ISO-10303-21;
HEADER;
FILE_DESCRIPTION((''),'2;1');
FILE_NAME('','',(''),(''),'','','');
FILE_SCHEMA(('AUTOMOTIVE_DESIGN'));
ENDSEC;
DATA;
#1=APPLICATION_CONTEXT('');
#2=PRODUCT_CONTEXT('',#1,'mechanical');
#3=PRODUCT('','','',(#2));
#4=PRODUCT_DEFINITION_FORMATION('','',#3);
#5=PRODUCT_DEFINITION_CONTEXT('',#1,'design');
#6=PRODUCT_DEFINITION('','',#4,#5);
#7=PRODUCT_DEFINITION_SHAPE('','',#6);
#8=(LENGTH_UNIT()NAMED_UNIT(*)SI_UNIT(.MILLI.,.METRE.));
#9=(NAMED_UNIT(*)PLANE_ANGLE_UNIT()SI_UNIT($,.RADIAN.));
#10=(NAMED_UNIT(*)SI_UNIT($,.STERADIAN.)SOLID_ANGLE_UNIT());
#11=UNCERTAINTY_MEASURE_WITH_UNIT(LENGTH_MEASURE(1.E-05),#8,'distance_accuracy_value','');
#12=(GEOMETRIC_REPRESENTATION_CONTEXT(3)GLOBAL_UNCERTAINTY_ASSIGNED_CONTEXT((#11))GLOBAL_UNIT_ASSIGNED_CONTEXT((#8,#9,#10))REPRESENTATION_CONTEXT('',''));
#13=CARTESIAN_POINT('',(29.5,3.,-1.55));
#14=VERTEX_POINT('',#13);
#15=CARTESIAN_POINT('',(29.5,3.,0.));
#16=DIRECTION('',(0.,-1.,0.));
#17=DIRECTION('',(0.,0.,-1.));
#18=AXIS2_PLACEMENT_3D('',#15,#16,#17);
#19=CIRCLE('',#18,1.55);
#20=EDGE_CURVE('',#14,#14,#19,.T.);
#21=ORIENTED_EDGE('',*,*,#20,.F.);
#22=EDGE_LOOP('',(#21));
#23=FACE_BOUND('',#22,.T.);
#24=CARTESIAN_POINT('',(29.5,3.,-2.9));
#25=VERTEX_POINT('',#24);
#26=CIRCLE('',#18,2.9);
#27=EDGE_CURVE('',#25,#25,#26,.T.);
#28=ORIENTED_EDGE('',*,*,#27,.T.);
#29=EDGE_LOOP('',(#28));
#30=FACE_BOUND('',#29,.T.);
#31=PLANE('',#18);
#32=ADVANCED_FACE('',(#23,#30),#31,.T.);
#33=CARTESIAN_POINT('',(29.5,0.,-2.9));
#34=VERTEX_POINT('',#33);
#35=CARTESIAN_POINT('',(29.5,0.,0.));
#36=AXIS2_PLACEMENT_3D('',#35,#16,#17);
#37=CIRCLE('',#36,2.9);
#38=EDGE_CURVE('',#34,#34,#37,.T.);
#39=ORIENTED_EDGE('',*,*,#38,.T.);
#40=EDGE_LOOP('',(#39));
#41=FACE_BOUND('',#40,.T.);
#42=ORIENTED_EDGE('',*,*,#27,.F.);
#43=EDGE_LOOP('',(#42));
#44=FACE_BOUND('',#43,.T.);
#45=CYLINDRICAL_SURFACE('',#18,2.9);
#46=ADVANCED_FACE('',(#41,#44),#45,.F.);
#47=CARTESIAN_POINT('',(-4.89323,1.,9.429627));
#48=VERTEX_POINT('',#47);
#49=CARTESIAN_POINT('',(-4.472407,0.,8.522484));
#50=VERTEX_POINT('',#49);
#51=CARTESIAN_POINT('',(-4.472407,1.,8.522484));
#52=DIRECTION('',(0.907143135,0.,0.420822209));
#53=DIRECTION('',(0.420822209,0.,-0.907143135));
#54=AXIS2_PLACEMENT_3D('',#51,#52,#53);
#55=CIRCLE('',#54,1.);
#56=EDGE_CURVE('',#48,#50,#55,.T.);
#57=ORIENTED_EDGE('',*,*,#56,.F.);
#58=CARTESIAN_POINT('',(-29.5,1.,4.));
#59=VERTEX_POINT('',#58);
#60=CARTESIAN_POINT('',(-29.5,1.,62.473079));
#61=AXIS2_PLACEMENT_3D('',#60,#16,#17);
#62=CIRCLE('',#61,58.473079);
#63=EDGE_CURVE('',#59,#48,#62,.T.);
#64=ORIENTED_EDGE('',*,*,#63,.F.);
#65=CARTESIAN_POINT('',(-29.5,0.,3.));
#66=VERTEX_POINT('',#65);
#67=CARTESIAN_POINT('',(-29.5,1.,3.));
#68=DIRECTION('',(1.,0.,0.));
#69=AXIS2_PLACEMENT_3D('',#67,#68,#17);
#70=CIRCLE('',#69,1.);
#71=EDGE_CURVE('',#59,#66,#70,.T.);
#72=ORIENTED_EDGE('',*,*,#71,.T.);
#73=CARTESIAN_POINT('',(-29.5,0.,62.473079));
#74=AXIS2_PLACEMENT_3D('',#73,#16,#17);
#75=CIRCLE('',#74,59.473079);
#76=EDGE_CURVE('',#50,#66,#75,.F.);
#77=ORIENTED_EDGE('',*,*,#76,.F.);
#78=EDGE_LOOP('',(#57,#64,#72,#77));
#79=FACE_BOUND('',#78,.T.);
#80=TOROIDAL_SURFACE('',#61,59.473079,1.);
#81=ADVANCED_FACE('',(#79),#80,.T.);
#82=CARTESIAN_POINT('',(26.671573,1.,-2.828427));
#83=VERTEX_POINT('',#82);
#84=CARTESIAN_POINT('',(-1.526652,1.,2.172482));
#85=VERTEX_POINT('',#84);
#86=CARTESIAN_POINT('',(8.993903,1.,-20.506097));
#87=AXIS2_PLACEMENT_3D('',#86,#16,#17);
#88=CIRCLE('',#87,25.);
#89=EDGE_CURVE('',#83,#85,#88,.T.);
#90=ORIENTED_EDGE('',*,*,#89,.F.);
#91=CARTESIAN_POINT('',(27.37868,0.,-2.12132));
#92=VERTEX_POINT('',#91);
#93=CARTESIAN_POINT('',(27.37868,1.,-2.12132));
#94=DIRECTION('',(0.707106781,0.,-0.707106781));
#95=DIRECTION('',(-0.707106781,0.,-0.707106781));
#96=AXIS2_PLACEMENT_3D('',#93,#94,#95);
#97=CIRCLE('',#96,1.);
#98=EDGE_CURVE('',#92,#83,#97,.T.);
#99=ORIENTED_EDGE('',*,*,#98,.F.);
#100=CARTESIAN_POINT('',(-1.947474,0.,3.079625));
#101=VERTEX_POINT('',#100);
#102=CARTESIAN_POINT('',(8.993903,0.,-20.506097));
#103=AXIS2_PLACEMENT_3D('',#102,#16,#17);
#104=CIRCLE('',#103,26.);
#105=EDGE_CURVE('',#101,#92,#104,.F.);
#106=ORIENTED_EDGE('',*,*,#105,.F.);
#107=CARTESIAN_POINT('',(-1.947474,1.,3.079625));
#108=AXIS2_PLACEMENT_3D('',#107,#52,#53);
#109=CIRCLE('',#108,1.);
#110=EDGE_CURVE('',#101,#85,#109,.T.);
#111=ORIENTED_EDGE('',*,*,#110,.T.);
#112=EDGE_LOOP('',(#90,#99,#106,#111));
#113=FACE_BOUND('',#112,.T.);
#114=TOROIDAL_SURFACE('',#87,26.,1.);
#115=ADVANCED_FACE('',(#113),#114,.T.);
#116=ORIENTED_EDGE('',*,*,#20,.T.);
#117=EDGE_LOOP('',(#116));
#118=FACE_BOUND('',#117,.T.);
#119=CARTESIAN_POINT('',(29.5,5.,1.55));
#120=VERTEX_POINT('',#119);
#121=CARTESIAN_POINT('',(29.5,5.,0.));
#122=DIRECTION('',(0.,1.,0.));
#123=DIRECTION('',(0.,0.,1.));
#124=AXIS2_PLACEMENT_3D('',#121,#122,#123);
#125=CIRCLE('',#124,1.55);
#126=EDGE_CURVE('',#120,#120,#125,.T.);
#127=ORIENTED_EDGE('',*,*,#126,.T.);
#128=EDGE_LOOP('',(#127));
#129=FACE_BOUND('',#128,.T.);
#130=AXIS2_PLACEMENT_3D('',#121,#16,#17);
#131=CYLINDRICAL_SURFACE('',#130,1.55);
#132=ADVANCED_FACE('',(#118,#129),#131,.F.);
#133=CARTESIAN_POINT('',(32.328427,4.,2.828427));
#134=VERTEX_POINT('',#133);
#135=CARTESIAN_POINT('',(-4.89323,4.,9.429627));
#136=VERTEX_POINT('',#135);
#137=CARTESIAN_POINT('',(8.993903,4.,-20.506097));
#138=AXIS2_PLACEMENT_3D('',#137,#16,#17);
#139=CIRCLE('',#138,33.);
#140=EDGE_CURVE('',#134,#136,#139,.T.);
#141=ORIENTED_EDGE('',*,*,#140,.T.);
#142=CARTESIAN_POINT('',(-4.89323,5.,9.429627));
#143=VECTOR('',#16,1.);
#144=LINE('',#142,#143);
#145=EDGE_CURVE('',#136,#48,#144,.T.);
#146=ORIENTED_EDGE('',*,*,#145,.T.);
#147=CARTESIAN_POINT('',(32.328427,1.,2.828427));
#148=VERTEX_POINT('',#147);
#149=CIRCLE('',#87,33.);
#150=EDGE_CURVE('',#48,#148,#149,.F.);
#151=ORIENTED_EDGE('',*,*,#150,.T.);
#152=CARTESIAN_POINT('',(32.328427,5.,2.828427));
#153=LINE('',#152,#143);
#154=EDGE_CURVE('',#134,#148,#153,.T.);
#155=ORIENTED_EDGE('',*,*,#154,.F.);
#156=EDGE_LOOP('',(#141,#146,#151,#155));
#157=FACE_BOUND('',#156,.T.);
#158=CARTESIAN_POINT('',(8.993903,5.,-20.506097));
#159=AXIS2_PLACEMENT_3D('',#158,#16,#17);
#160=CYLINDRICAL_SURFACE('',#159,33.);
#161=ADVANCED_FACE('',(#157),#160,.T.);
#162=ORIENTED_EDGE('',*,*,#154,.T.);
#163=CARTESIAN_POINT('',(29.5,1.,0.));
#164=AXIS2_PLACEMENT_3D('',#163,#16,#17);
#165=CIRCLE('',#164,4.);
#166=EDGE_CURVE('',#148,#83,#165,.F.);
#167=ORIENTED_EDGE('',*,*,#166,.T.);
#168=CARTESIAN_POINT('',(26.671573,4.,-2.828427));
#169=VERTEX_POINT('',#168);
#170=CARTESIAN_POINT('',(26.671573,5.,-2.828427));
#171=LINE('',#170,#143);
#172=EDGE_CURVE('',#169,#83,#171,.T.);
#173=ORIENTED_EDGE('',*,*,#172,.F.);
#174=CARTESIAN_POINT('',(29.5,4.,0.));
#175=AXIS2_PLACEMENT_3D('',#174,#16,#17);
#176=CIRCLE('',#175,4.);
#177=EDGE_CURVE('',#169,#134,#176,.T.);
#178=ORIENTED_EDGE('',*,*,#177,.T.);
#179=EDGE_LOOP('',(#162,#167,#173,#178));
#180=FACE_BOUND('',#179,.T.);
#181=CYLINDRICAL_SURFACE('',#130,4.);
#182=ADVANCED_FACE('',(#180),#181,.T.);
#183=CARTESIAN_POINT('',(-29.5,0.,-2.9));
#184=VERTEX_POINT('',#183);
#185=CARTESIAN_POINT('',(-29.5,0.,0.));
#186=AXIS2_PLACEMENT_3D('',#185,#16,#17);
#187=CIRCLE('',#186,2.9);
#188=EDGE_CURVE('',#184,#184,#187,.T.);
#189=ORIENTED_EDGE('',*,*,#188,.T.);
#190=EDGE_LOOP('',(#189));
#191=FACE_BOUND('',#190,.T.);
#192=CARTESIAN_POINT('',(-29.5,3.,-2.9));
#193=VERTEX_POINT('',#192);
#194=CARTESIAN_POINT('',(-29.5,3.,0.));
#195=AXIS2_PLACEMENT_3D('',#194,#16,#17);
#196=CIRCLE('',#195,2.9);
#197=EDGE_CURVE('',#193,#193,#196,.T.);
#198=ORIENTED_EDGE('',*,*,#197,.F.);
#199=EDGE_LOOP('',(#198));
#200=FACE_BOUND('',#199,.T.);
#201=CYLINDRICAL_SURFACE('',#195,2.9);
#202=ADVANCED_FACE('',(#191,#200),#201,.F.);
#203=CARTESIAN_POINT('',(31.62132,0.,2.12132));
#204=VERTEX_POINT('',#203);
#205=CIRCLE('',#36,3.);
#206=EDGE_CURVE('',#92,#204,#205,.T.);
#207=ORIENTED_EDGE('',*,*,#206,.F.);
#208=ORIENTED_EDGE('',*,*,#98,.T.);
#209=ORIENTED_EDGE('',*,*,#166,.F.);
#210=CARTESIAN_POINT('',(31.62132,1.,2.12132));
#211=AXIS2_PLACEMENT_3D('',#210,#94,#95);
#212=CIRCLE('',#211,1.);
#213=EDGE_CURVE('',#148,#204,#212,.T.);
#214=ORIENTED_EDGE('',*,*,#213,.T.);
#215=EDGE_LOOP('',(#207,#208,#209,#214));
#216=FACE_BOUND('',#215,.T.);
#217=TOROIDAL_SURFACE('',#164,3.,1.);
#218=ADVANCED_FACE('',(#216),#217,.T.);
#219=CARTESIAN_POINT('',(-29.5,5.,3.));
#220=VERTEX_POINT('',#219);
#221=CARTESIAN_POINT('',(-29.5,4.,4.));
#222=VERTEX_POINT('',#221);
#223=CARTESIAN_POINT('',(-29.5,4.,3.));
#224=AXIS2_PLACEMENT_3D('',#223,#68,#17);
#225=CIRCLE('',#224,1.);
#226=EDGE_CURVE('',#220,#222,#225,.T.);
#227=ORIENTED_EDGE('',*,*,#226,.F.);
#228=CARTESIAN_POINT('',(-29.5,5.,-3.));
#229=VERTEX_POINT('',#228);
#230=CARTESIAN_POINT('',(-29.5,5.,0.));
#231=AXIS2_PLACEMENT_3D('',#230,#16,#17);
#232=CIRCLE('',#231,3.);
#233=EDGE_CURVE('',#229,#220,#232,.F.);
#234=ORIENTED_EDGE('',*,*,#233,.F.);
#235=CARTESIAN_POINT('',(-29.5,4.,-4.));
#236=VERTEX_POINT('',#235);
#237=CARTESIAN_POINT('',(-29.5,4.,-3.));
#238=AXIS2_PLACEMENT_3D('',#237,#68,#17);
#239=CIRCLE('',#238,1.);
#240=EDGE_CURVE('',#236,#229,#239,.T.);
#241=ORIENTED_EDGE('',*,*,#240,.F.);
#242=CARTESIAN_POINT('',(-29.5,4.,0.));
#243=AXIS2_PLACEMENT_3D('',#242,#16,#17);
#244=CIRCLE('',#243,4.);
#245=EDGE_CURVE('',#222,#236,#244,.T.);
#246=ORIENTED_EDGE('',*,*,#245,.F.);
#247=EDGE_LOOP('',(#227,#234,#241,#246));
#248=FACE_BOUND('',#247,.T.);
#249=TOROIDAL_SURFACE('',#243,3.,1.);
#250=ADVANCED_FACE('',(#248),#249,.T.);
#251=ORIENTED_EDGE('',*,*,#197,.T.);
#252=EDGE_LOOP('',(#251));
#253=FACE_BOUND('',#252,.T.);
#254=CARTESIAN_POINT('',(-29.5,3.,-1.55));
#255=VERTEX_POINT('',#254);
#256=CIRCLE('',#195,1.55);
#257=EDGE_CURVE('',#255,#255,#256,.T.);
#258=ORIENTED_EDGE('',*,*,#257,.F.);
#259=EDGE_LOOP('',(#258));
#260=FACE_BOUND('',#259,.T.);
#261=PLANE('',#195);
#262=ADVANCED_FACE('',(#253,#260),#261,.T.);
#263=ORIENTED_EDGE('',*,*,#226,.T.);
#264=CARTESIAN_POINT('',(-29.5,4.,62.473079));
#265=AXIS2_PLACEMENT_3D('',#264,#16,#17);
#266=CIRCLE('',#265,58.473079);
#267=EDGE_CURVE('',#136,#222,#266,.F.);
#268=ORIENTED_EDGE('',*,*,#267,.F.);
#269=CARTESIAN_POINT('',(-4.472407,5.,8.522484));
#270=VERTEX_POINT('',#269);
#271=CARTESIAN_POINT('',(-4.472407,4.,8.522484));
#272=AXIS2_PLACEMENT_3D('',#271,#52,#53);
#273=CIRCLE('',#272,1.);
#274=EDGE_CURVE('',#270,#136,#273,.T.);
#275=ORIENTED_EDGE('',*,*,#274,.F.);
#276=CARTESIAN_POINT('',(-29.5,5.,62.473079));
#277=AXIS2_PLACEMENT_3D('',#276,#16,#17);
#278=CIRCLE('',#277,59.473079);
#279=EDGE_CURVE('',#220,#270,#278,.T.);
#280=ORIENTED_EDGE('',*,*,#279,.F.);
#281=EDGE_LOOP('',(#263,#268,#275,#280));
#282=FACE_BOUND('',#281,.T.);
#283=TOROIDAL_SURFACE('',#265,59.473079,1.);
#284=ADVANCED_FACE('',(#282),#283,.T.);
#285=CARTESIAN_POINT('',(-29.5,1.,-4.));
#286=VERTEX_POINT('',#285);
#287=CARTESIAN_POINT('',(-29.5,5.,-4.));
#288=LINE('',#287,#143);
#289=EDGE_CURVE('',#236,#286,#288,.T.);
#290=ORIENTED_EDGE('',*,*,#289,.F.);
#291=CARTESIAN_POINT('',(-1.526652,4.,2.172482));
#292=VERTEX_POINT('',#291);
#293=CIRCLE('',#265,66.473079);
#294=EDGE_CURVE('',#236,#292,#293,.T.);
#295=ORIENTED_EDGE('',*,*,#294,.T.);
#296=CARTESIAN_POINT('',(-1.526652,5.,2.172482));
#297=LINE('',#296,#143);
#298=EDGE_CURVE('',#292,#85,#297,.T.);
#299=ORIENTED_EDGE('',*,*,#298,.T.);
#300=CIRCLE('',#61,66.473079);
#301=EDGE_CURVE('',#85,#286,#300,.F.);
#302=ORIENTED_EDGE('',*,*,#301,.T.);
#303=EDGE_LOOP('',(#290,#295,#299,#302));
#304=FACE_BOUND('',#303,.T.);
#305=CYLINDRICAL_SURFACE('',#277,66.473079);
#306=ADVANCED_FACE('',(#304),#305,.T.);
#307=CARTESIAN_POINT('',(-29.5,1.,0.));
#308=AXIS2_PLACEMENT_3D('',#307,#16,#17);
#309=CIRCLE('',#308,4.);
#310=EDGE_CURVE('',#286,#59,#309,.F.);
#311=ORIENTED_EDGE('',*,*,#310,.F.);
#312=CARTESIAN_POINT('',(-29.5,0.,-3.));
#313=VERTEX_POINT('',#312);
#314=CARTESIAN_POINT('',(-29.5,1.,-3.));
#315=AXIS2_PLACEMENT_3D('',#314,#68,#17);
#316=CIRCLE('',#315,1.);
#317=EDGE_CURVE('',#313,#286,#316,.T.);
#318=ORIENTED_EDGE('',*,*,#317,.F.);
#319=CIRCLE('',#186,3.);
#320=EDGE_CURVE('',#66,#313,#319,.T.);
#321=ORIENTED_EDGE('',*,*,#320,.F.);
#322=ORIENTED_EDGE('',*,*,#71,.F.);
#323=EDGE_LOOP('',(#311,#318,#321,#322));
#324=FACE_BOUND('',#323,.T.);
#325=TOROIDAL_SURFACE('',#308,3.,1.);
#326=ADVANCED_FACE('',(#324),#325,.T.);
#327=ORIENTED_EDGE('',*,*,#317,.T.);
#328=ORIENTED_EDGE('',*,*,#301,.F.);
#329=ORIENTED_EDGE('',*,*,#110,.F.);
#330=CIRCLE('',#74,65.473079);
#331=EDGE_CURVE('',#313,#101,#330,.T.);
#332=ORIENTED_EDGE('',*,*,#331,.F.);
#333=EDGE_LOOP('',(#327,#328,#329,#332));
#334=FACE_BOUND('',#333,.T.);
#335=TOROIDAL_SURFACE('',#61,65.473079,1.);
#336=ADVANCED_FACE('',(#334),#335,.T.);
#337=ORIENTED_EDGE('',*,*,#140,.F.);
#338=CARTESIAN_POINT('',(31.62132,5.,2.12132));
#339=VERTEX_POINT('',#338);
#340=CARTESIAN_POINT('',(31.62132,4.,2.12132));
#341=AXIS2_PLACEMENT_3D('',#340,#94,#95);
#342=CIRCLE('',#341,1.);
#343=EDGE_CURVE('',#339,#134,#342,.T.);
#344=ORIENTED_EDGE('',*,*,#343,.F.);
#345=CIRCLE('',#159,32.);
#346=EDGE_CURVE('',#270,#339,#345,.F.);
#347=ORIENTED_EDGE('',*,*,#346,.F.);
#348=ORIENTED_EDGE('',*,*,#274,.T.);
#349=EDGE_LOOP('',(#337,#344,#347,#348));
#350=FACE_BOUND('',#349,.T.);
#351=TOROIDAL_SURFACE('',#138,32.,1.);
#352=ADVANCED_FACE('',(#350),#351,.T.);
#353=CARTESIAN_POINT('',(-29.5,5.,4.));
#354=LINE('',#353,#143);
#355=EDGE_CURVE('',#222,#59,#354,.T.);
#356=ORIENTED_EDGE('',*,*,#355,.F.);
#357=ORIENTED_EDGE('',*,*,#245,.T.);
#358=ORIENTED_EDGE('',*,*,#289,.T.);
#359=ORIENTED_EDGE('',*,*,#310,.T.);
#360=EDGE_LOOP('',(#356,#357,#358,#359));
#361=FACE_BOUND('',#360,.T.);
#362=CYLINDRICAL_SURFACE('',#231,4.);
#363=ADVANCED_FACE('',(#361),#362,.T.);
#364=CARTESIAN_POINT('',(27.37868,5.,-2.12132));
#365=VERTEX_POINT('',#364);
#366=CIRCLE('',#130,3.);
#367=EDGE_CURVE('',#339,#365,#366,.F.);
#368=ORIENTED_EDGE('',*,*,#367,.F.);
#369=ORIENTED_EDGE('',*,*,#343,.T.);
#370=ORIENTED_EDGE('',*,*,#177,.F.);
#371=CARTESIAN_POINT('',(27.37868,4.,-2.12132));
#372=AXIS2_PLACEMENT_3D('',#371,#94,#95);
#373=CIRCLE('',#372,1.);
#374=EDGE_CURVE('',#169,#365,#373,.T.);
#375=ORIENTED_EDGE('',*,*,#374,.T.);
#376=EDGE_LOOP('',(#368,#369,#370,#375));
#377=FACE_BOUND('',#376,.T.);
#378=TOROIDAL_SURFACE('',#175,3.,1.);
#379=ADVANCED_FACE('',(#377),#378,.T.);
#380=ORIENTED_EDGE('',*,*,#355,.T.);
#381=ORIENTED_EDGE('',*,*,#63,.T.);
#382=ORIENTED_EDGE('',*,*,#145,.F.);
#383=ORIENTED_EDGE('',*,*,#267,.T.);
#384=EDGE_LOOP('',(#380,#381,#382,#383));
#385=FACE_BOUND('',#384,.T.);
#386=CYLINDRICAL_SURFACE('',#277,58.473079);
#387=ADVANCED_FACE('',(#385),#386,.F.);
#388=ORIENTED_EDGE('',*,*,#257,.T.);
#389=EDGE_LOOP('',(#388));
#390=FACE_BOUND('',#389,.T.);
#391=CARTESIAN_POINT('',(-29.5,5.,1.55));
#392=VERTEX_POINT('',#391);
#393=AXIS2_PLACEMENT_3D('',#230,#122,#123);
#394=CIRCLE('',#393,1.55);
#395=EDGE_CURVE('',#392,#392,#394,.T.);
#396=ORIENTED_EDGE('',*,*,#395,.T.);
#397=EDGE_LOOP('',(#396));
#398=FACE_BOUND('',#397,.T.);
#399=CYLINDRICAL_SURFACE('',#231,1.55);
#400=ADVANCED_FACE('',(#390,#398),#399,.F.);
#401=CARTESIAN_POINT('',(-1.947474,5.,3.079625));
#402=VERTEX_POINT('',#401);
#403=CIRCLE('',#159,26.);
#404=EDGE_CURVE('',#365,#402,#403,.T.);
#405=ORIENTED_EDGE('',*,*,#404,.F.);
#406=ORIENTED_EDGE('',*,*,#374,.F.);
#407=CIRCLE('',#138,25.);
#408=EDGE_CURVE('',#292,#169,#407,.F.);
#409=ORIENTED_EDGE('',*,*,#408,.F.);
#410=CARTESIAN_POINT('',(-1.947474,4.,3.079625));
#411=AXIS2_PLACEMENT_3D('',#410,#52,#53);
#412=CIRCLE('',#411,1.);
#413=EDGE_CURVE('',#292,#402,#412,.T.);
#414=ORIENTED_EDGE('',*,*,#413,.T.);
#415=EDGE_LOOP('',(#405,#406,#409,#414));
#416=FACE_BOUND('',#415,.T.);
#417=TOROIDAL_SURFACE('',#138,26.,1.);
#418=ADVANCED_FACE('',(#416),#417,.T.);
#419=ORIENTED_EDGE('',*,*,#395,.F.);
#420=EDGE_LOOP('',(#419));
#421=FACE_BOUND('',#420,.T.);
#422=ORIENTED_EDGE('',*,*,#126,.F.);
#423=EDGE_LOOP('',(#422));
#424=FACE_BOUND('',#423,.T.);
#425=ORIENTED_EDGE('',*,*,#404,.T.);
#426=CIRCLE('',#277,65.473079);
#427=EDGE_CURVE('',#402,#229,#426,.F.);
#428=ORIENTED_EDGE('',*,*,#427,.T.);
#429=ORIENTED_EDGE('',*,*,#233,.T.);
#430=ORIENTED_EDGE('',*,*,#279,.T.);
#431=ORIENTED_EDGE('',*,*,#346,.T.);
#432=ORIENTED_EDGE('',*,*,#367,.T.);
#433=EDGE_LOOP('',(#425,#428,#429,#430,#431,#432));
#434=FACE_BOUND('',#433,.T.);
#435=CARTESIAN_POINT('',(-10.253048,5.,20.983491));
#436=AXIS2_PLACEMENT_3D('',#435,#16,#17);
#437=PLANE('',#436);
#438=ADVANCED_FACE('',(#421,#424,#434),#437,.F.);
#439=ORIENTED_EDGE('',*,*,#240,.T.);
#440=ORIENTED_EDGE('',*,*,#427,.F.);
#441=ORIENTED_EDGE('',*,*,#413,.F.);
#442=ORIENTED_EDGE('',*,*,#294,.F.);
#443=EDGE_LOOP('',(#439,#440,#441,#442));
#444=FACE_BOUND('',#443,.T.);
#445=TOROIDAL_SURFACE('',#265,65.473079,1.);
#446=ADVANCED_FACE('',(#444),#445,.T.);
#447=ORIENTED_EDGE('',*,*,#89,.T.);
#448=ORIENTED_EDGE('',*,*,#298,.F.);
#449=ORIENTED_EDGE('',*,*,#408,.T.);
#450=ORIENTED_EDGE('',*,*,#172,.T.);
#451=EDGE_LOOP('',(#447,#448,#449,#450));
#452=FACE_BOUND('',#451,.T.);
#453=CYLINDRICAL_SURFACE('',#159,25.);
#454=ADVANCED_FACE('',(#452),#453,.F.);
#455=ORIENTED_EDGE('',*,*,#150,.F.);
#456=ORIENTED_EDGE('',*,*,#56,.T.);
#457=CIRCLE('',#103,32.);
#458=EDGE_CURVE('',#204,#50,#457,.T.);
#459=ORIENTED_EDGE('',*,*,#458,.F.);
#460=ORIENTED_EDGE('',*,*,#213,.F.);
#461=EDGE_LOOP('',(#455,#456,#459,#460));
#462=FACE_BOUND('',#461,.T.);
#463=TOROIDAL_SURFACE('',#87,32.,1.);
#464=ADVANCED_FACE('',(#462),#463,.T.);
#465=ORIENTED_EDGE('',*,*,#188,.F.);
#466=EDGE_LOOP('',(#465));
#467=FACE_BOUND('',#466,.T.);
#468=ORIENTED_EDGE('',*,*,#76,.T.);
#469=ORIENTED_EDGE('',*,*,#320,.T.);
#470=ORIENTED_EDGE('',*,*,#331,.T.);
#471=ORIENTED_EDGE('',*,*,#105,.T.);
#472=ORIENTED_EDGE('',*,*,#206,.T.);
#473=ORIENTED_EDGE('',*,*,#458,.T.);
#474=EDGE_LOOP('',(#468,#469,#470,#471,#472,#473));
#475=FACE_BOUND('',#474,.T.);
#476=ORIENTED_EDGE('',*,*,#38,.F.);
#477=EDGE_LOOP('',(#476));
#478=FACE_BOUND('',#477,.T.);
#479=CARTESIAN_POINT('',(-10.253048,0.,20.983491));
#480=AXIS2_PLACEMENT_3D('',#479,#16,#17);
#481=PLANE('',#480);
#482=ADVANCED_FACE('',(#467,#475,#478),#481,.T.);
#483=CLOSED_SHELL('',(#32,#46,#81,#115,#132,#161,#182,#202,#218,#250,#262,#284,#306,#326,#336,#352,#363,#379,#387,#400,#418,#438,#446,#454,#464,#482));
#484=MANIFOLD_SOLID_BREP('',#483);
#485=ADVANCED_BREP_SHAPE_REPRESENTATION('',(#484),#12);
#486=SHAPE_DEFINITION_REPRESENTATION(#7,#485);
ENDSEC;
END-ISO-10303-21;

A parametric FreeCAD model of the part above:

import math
import FreeCAD as App
import Part
import Sketcher
from FreeCAD import Vector


def edges_at(feature, points):
    """Names of the edges that pass closest to the given points."""
    edges = feature.Shape.Edges
    near = lambda p: min(range(len(edges)), key=lambda i: edges[i].distToShape(Part.Vertex(*p))[0])
    return sorted({f"Edge{near(p) + 1}" for p in points})

doc = App.newDocument("Part")
body = doc.addObject("PartDesign::Body", "Body")

sketch1 = body.newObject("Sketcher::SketchObject", "Sketch")
sketch1.AttachmentSupport = (doc.getObject("XZ_Plane"), [""])
sketch1.MapMode = "FlatFace"
sketch1.addGeometry([
    Part.ArcOfCircle(Part.Circle(Vector(-29.5, 0, 0), Vector(0, 0, 1), 4), math.radians(90), math.radians(270)),
    Part.ArcOfCircle(Part.Circle(Vector(-29.5, 62.473079, 0), Vector(0, 0, 1), 58.473079), math.radians(-90), math.radians(-65.113492)),
    Part.ArcOfCircle(Part.Circle(Vector(8.993903, -20.506097, 0), Vector(0, 0, 1), 33), math.radians(45), math.radians(114.886508)),
    Part.ArcOfCircle(Part.Circle(Vector(29.5, 0, 0), Vector(0, 0, 1), 4), math.radians(-135), math.radians(45)),
    Part.ArcOfCircle(Part.Circle(Vector(8.993903, -20.506097, 0), Vector(0, 0, 1), 25), math.radians(45), math.radians(114.886508)),
    Part.ArcOfCircle(Part.Circle(Vector(-29.5, 62.473079, 0), Vector(0, 0, 1), 66.473079), math.radians(-90), math.radians(-65.113492)),
    Part.Circle(Vector(-29.5, 0, 0), Vector(0, 0, 1), 1.55),
    Part.Circle(Vector(29.5, 0, 0), Vector(0, 0, 1), 1.55),
], False)
sketch1.addConstraint([
    Sketcher.Constraint("Tangent", 0, 1, 1, 1),
    Sketcher.Constraint("Tangent", 1, 2, 2, 2),
    Sketcher.Constraint("Tangent", 2, 1, 3, 2),
    Sketcher.Constraint("Tangent", 3, 1, 4, 1),
    Sketcher.Constraint("Tangent", 4, 2, 5, 2),
    Sketcher.Constraint("Tangent", 5, 1, 0, 2),
    Sketcher.Constraint("Coincident", 4, 3, 2, 3),
    Sketcher.Constraint("Coincident", 5, 3, 1, 3),
    Sketcher.Constraint("Coincident", 6, 3, 0, 3),
    Sketcher.Constraint("Coincident", 7, 3, 3, 3),
    Sketcher.Constraint("Equal", 6, 7),
    Sketcher.Constraint("Symmetric", 0, 3, 3, 3, -1, 1),
    Sketcher.Constraint("PointOnObject", 0, 3, -1),
    Sketcher.Constraint("Vertical", 0, 3, 1, 3),
    Sketcher.Constraint("Radius", 0, 4.0),
    Sketcher.Constraint("Radius", 2, 33.0),
    Sketcher.Constraint("Diameter", 6, 3.1),
    Sketcher.Constraint("DistanceX", 0, 3, 3, 3, 59.0),
    Sketcher.Constraint("Radius", 1, 58.473079),
])
pad1 = body.newObject("PartDesign::Pad", "Pad")
pad1.Profile = sketch1
pad1.Length = 5
pad1.Reversed = True
doc.recompute()

fillet = body.newObject("PartDesign::Fillet", "Fillet")
fillet.Base = (pad1, edges_at(pad1, [
    (-16.901, 5, 5.374),
    (14.756, 5, 11.987),
    (32.328, 5, -2.828),
    (13.359, 5, 4.11),
    (-15.177, 5, -2.439),
    (13.359, 0, 4.11),
    (32.328, 0, -2.828),
    (14.756, 0, 11.987),
    (-16.901, 0, 5.374),
    (-33.5, 0, 0),
    (-15.177, 0, -2.439),
    (-33.5, 5, 0),
]))
fillet.Radius = 1

sketch2 = body.newObject("Sketcher::SketchObject", "Sketch001")
sketch2.AttachmentSupport = (doc.getObject("XZ_Plane"), [""])
sketch2.MapMode = "FlatFace"
sketch2.addGeometry([
    Part.Circle(Vector(29.5, 0, 0), Vector(0, 0, 1), 2.9),
    Part.Circle(Vector(-29.5, 0, 0), Vector(0, 0, 1), 2.9),
], False)
sketch2.addConstraint([
    Sketcher.Constraint("Equal", 0, 1),
    Sketcher.Constraint("Symmetric", 0, 3, 1, 3, -1, 1),
    Sketcher.Constraint("PointOnObject", 0, 3, -1),
    Sketcher.Constraint("Diameter", 0, 5.8),
    Sketcher.Constraint("DistanceX", 1, 3, 0, 3, 59.0),
])
pocket1 = body.newObject("PartDesign::Pocket", "Pocket")
pocket1.Profile = sketch2
pocket1.Length = 3

doc.recompute()
